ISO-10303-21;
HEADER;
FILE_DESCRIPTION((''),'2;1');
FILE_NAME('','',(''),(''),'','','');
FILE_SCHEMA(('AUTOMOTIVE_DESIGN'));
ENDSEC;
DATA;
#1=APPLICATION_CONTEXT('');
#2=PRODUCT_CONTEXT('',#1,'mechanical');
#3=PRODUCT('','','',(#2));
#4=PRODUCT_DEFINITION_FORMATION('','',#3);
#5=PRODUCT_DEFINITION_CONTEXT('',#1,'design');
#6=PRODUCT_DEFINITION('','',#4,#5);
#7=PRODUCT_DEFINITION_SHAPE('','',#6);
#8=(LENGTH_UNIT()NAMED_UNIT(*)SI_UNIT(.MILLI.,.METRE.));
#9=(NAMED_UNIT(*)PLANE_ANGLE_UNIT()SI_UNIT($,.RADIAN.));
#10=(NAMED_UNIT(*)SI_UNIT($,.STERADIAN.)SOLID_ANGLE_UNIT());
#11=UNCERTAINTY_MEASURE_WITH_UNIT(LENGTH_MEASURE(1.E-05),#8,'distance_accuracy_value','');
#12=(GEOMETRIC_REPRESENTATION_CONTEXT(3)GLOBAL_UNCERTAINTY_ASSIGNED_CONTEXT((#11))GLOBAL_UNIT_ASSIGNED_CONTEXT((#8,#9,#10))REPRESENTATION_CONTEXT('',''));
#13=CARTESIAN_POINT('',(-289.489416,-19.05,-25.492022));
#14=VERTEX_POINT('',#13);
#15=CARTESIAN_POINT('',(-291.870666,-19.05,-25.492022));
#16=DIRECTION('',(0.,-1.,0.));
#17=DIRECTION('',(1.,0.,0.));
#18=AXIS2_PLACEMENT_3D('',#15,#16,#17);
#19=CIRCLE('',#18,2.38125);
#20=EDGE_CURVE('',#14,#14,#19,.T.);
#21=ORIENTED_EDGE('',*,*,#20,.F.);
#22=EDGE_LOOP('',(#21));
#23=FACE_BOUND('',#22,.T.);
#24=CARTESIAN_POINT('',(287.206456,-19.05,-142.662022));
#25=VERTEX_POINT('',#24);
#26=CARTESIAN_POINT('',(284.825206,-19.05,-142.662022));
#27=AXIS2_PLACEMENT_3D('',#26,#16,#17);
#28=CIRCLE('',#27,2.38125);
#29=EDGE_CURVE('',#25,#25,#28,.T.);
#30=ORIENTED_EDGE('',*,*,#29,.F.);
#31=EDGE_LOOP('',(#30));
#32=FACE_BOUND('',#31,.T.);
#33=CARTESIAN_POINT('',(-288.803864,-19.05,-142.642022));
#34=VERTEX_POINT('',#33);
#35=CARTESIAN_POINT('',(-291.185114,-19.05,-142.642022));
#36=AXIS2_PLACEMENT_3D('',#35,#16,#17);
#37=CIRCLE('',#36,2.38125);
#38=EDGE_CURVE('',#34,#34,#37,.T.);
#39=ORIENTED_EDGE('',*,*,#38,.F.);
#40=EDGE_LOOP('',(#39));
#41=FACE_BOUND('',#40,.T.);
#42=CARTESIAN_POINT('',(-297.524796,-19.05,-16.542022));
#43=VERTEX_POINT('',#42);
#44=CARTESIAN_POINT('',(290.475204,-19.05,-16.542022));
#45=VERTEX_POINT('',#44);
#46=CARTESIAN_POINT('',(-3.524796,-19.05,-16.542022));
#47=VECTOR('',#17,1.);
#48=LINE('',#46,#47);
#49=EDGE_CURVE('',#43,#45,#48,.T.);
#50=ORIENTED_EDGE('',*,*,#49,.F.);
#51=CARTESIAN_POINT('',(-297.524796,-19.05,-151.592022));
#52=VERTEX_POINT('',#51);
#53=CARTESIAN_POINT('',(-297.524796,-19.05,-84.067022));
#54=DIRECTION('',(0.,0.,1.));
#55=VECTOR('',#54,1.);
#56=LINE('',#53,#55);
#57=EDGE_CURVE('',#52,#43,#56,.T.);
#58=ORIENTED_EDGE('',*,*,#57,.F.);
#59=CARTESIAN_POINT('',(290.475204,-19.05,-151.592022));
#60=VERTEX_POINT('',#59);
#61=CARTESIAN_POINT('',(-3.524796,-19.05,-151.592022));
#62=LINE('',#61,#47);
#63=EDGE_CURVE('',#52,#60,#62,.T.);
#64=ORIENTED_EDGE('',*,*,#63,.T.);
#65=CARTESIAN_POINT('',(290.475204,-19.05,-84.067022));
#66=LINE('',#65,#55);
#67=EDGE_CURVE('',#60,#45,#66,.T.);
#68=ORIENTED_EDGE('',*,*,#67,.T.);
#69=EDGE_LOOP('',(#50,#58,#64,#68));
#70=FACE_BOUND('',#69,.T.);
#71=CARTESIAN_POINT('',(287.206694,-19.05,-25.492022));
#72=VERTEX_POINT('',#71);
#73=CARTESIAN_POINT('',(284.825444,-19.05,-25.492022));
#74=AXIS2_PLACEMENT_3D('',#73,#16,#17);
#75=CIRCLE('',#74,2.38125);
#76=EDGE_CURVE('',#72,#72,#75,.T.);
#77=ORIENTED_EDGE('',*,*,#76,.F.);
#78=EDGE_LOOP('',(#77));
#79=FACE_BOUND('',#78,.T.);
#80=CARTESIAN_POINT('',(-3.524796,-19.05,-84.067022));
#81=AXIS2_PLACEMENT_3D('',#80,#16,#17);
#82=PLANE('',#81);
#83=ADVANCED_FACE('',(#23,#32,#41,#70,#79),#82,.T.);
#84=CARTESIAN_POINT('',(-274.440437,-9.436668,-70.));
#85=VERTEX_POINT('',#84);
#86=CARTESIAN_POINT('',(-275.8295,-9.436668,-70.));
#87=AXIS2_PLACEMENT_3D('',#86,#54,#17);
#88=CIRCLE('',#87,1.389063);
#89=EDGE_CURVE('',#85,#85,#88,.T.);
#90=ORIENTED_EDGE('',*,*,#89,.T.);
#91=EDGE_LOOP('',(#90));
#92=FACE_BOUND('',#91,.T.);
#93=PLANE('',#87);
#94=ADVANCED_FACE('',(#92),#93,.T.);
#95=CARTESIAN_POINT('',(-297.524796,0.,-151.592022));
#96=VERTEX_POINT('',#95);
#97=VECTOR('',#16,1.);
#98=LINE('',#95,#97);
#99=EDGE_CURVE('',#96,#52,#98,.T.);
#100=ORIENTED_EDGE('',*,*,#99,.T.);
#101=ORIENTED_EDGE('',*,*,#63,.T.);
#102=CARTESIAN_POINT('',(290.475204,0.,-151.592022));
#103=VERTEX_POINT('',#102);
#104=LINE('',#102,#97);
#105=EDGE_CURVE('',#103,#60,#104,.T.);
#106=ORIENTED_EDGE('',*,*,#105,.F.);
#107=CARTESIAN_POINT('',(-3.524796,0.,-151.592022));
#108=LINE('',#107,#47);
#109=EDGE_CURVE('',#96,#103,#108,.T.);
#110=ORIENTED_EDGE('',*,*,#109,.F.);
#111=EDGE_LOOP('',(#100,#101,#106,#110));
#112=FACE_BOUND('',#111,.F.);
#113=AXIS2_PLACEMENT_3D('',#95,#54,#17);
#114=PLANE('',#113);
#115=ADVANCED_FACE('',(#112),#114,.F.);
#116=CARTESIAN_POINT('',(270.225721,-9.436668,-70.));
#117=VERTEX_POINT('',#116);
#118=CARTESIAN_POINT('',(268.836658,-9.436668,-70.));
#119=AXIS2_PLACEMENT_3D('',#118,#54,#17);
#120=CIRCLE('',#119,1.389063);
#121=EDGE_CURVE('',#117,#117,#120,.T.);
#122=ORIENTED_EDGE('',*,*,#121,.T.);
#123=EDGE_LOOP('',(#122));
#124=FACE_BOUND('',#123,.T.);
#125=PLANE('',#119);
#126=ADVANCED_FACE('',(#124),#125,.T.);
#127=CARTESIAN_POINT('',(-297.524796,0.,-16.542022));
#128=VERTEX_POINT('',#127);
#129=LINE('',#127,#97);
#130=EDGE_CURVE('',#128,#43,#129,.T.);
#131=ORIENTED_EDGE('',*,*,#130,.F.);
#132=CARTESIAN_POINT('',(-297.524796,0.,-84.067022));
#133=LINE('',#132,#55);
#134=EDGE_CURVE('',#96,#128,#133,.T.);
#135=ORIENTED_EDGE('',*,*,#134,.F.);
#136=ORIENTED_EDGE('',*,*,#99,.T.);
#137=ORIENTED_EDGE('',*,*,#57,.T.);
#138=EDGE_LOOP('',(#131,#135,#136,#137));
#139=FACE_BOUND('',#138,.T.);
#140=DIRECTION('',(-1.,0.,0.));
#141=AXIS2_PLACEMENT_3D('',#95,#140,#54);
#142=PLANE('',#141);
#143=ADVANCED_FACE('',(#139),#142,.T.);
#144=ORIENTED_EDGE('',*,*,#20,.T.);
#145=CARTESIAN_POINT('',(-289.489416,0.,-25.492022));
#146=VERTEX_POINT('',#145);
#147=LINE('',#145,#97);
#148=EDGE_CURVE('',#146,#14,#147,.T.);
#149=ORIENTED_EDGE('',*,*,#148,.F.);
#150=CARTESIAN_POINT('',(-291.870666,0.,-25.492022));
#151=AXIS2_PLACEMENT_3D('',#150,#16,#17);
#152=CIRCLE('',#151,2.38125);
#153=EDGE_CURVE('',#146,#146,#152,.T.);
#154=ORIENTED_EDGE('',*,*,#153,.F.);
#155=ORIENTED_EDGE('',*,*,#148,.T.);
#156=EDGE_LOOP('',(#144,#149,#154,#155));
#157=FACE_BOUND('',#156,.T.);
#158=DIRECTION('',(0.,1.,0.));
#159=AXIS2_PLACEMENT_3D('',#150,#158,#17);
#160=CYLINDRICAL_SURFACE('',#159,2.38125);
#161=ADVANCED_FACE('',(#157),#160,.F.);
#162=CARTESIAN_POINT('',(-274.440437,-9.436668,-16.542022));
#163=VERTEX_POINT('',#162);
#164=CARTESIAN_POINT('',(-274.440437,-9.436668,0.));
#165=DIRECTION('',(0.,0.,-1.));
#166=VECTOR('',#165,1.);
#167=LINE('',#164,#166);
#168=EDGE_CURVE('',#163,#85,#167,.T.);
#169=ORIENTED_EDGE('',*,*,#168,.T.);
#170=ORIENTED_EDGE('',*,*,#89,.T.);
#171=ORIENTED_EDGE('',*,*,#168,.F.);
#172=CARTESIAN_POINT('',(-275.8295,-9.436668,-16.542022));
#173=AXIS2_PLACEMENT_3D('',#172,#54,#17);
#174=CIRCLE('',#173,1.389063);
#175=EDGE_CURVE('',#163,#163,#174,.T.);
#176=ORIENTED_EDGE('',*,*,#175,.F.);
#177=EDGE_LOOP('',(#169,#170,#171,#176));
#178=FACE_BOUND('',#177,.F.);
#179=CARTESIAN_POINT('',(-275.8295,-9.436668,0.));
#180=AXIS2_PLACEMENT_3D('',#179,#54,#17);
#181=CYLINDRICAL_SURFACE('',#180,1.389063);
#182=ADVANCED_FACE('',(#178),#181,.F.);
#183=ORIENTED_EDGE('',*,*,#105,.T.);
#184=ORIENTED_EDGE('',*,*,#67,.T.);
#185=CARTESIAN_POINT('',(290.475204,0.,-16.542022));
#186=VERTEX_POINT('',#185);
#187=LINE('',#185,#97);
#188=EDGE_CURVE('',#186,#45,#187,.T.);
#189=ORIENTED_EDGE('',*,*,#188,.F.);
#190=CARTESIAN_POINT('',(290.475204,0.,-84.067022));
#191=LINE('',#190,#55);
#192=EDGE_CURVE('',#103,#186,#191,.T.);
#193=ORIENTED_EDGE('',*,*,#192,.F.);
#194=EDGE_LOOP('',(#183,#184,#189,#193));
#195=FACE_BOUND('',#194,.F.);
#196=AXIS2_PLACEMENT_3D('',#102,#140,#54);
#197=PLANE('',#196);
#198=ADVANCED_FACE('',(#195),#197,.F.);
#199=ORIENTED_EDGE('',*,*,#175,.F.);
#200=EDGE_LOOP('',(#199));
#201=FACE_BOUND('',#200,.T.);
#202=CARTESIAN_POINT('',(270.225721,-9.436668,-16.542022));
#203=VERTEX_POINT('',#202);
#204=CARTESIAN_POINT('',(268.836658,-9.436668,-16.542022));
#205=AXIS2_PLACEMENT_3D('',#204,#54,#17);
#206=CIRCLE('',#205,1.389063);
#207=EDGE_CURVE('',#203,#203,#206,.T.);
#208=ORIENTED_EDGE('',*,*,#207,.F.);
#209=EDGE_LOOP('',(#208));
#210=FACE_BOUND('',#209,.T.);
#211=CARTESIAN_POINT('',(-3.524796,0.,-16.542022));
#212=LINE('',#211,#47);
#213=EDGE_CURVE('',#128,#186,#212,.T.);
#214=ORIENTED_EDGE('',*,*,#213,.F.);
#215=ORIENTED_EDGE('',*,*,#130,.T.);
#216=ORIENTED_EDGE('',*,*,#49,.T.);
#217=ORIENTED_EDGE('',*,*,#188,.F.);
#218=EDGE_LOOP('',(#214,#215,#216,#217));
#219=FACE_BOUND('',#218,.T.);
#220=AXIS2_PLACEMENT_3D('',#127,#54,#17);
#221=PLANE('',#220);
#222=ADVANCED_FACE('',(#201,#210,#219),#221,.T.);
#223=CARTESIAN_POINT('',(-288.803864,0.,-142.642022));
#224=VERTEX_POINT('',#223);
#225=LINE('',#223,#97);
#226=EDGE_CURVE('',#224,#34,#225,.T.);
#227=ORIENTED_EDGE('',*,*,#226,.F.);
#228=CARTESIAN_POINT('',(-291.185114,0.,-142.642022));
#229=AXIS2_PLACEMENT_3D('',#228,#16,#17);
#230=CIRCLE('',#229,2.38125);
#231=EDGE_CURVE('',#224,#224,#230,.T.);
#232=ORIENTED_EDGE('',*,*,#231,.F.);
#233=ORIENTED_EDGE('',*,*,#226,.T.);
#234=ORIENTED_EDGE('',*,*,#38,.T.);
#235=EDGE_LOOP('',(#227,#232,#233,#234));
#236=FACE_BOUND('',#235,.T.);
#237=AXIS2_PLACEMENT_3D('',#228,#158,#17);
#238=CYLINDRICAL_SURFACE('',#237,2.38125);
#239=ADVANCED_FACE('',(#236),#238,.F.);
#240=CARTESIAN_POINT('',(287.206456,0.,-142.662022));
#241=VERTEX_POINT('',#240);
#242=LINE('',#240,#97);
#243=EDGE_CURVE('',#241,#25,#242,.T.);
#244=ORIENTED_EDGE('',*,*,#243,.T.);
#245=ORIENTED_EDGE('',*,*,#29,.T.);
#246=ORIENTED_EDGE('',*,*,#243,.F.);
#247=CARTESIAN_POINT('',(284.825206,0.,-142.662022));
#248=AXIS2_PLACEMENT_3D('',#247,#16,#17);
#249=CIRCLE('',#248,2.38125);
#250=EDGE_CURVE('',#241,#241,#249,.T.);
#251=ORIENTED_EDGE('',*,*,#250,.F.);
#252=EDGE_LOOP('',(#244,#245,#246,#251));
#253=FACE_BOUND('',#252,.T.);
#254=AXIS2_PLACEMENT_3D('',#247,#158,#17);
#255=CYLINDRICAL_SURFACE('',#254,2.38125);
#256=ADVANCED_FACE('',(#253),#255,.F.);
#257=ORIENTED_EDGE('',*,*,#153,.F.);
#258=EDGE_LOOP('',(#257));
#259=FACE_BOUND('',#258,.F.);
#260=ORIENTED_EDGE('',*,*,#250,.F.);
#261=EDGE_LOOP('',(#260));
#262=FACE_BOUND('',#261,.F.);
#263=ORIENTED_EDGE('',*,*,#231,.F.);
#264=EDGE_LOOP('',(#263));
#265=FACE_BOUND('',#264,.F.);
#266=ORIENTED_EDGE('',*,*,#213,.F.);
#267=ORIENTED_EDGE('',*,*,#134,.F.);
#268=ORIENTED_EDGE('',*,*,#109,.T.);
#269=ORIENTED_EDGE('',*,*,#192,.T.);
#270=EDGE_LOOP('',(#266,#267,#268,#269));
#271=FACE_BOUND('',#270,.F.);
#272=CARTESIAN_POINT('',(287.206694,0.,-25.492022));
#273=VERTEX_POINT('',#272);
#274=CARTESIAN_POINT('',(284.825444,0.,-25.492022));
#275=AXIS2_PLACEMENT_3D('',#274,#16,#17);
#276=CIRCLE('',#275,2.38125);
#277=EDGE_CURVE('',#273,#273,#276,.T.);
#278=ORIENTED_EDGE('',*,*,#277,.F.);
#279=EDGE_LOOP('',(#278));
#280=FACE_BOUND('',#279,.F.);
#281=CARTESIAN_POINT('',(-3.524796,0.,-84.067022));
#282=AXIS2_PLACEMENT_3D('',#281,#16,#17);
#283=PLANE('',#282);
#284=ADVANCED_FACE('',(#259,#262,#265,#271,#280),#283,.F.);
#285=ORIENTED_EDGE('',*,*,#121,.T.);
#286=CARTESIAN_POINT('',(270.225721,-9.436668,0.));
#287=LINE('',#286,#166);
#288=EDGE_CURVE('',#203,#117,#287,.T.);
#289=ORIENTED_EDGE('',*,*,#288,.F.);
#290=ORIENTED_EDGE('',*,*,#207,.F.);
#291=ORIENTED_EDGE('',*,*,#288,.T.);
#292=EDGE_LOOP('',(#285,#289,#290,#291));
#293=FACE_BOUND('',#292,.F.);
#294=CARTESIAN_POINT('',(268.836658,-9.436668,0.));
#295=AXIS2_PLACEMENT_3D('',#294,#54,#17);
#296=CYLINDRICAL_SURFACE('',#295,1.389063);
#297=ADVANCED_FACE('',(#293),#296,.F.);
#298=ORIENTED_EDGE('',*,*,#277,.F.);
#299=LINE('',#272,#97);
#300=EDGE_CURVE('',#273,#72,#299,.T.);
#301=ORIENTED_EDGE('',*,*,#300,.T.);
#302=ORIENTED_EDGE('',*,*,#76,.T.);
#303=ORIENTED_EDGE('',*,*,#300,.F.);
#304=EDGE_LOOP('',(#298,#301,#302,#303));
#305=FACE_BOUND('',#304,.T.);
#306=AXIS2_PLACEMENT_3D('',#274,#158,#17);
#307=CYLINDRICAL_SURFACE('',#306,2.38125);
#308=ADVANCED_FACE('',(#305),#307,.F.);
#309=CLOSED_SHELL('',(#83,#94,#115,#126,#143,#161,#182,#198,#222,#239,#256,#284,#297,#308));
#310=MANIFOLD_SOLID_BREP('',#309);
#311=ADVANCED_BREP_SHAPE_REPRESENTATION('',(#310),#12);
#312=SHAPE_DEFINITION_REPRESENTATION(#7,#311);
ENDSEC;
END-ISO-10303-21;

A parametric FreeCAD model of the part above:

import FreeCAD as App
import Part
import Sketcher

V = App.Vector
Q = App.Units.Quantity


def add_polygon(sketch, points):
    """Adds a closed chain of lines whose ends are joined by coincident constraints."""
    first, n = sketch.GeometryCount, len(points)
    for a, b in zip(points, points[1:] + points[:1]):
        sketch.addGeometry(Part.LineSegment(App.Vector(*a, 0), App.Vector(*b, 0)), False)
    for i in range(n):
        sketch.addConstraint(Sketcher.Constraint("Coincident", first + i, 2, first + (i + 1) % n, 1))

doc = App.newDocument("Part")
params = doc.addObject("Spreadsheet::Sheet", "Params")
for row, (alias, value) in enumerate([
    ("sketch1_diameter", "0.1875 in"),
    ("pad1_length", "0.75 in"),
    ("sketch2_diameter", "0.109375 in"),
    ("pocket1_length", "70 mm"),
    ("sketch3_diameter", "0.1875 in"),
    ("pocket2_length", "0.75 in"),
    ("sketch4_diameter", "0.109375 in"),
    ("pocket3_length", "70 mm"),
], start=1):
    params.set(f"A{row}", alias)
    params.set(f"B{row}", "=" + value)
    params.setAlias(f"B{row}", alias)

body = doc.addObject("PartDesign::Body", "Body")

sketch1 = body.newObject("Sketcher::SketchObject", "Sketch")
sketch1.AttachmentSupport = (doc.getObject("XZ_Plane"), [""])
sketch1.MapMode = "FlatFace"
add_polygon(sketch1, [(-297.524796, -16.542022), (-297.524796, -151.592022), (290.475204, -151.592022), (290.475204, -16.542022)])
sketch1.addGeometry(Part.Circle(V(-291.185114, -142.642022, 0), V(0, 0, 1), 2.38125), False)
sketch1.addGeometry(Part.Circle(V(284.825206, -142.662022, 0), V(0, 0, 1), 2.38125), False)
sketch1.addGeometry(Part.Circle(V(-291.870666, -25.492022, 0), V(0, 0, 1), 2.38125), False)
sketch1.addGeometry(Part.Circle(V(284.825444, -25.492022, 0), V(0, 0, 1), 2.38125), False)
sketch1.addConstraint(Sketcher.Constraint("Vertical", 0))
sketch1.addConstraint(Sketcher.Constraint("Horizontal", 1))
sketch1.addConstraint(Sketcher.Constraint("Vertical", 2))
sketch1.addConstraint(Sketcher.Constraint("Horizontal", 3))
sketch1.addConstraint(Sketcher.Constraint("Equal", 4, 5))
sketch1.addConstraint(Sketcher.Constraint("Equal", 5, 6))
sketch1.addConstraint(Sketcher.Constraint("Equal", 6, 7))
sketch1.addConstraint(Sketcher.Constraint("Horizontal", 6, 3, 7, 3))
sketch1.addConstraint(Sketcher.Constraint("Diameter", 4, Q("0.1875 in")))
sketch1.addConstraint(Sketcher.Constraint("DistanceX", 1, 1, 1, 2, 588.0))
sketch1.addConstraint(Sketcher.Constraint("DistanceY", 0, 2, 0, 1, 135.05))
sketch1.addConstraint(Sketcher.Constraint("DistanceX", -1, 1, 7, 3, Q("11.2136002 in")))
sketch1.addConstraint(Sketcher.Constraint("DistanceY", 5, 3, 4, 3, 0.02))
sketch1.addConstraint(Sketcher.Constraint("DistanceY", 4, 3, 6, 3, 117.15))
sketch1.addConstraint(Sketcher.Constraint("DistanceY", 0, 2, 4, 3, 8.95))
sketch1.addConstraint(Sketcher.Constraint("DistanceX", 0, 2, 5, 3, 582.350002))
sketch1.addConstraint(Sketcher.Constraint("DistanceY", 4, 3, -1, 1, 142.642022))
sketch1.addConstraint(Sketcher.Constraint("DistanceX", 4, 3, 5, 3, 576.01032))
sketch1.addConstraint(Sketcher.Constraint("DistanceX", 6, 3, 5, 3, 576.695872))
sketch1.addConstraint(Sketcher.Constraint("DistanceX", 5, 3, 7, 3, 0.000238))
sketch1.setExpression("Constraints[12]", "Params.sketch1_diameter")
pad1 = body.newObject("PartDesign::Pad", "Pad")
pad1.Profile = sketch1
pad1.setExpression("Length", "Params.pad1_length")

sketch2 = body.newObject("Sketcher::SketchObject", "Sketch001")
sketch2.AttachmentSupport = (doc.getObject("XY_Plane"), [""])
sketch2.MapMode = "FlatFace"
sketch2.addGeometry(Part.Circle(V(-275.8295, -9.436668, 0), V(0, 0, 1), 1.389063), False)
sketch2.addGeometry(Part.Circle(V(268.836658, -9.436668, 0), V(0, 0, 1), 1.389063), False)
sketch2.addConstraint(Sketcher.Constraint("Equal", 0, 1))
sketch2.addConstraint(Sketcher.Constraint("Horizontal", 0, 3, 1, 3))
sketch2.addConstraint(Sketcher.Constraint("Diameter", 0, Q("0.109375 in")))
sketch2.addConstraint(Sketcher.Constraint("DistanceX", 0, 3, -1, 1, 275.8295))
sketch2.addConstraint(Sketcher.Constraint("DistanceX", -1, 1, 1, 3, 268.836658))
sketch2.addConstraint(Sketcher.Constraint("DistanceY", 0, 3, -1, 1, 9.436668))
sketch2.setExpression("Constraints[2]", "Params.sketch2_diameter")
pocket1 = body.newObject("PartDesign::Pocket", "Pocket")
pocket1.Profile = sketch2
pocket1.setExpression("Length", "Params.pocket1_length")

sketch3 = body.newObject("Sketcher::SketchObject", "Sketch002")
sketch3.AttachmentSupport = (doc.getObject("XZ_Plane"), [""])
sketch3.MapMode = "FlatFace"
add_polygon(sketch3, [(-297.524796, -16.542022), (-297.524796, -151.592022), (290.475204, -151.592022), (290.475204, -16.542022)])
sketch3.addGeometry(Part.Circle(V(-291.185114, -142.642022, 0), V(0, 0, 1), 2.38125), False)
sketch3.addGeometry(Part.Circle(V(284.825206, -142.662022, 0), V(0, 0, 1), 2.38125), False)
sketch3.addGeometry(Part.Circle(V(-291.870666, -25.492022, 0), V(0, 0, 1), 2.38125), False)
sketch3.addGeometry(Part.Circle(V(284.825444, -25.492022, 0), V(0, 0, 1), 2.38125), False)
sketch3.addConstraint(Sketcher.Constraint("Vertical", 0))
sketch3.addConstraint(Sketcher.Constraint("Horizontal", 1))
sketch3.addConstraint(Sketcher.Constraint("Vertical", 2))
sketch3.addConstraint(Sketcher.Constraint("Horizontal", 3))
sketch3.addConstraint(Sketcher.Constraint("Equal", 4, 5))
sketch3.addConstraint(Sketcher.Constraint("Equal", 5, 6))
sketch3.addConstraint(Sketcher.Constraint("Equal", 6, 7))
sketch3.addConstraint(Sketcher.Constraint("Horizontal", 6, 3, 7, 3))
sketch3.addConstraint(Sketcher.Constraint("Diameter", 4, Q("0.1875 in")))
sketch3.addConstraint(Sketcher.Constraint("DistanceX", 1, 1, 1, 2, 588.0))
sketch3.addConstraint(Sketcher.Constraint("DistanceY", 0, 2, 0, 1, 135.05))
sketch3.addConstraint(Sketcher.Constraint("DistanceX", -1, 1, 7, 3, Q("11.2136002 in")))
sketch3.addConstraint(Sketcher.Constraint("DistanceY", 5, 3, 4, 3, 0.02))
sketch3.addConstraint(Sketcher.Constraint("DistanceY", 4, 3, 6, 3, 117.15))
sketch3.addConstraint(Sketcher.Constraint("DistanceY", 0, 2, 4, 3, 8.95))
sketch3.addConstraint(Sketcher.Constraint("DistanceX", 0, 2, 5, 3, 582.350002))
sketch3.addConstraint(Sketcher.Constraint("DistanceY", 4, 3, -1, 1, 142.642022))
sketch3.addConstraint(Sketcher.Constraint("DistanceX", 4, 3, 5, 3, 576.01032))
sketch3.addConstraint(Sketcher.Constraint("DistanceX", 6, 3, 5, 3, 576.695872))
sketch3.addConstraint(Sketcher.Constraint("DistanceX", 5, 3, 7, 3, 0.000238))
sketch3.setExpression("Constraints[12]", "Params.sketch3_diameter")
pocket2 = body.newObject("PartDesign::Pocket", "Pocket001")
pocket2.Profile = sketch3
pocket2.setExpression("Length", "Params.pocket2_length")

sketch4 = body.newObject("Sketcher::SketchObject", "Sketch003")
sketch4.AttachmentSupport = (doc.getObject("XY_Plane"), [""])
sketch4.MapMode = "FlatFace"
sketch4.addGeometry(Part.Circle(V(-275.8295, -9.436668, 0), V(0, 0, 1), 1.389063), False)
sketch4.addGeometry(Part.Circle(V(268.836658, -9.436668, 0), V(0, 0, 1), 1.389063), False)
sketch4.addConstraint(Sketcher.Constraint("Equal", 0, 1))
sketch4.addConstraint(Sketcher.Constraint("Horizontal", 0, 3, 1, 3))
sketch4.addConstraint(Sketcher.Constraint("Diameter", 0, Q("0.109375 in")))
sketch4.addConstraint(Sketcher.Constraint("DistanceX", 0, 3, -1, 1, 275.8295))
sketch4.addConstraint(Sketcher.Constraint("DistanceX", -1, 1, 1, 3, 268.836658))
sketch4.addConstraint(Sketcher.Constraint("DistanceY", 0, 3, -1, 1, 9.436668))
sketch4.setExpression("Constraints[2]", "Params.sketch4_diameter")
pocket3 = body.newObject("PartDesign::Pocket", "Pocket002")
pocket3.Profile = sketch4
pocket3.setExpression("Length", "Params.pocket3_length")

doc.recompute()
